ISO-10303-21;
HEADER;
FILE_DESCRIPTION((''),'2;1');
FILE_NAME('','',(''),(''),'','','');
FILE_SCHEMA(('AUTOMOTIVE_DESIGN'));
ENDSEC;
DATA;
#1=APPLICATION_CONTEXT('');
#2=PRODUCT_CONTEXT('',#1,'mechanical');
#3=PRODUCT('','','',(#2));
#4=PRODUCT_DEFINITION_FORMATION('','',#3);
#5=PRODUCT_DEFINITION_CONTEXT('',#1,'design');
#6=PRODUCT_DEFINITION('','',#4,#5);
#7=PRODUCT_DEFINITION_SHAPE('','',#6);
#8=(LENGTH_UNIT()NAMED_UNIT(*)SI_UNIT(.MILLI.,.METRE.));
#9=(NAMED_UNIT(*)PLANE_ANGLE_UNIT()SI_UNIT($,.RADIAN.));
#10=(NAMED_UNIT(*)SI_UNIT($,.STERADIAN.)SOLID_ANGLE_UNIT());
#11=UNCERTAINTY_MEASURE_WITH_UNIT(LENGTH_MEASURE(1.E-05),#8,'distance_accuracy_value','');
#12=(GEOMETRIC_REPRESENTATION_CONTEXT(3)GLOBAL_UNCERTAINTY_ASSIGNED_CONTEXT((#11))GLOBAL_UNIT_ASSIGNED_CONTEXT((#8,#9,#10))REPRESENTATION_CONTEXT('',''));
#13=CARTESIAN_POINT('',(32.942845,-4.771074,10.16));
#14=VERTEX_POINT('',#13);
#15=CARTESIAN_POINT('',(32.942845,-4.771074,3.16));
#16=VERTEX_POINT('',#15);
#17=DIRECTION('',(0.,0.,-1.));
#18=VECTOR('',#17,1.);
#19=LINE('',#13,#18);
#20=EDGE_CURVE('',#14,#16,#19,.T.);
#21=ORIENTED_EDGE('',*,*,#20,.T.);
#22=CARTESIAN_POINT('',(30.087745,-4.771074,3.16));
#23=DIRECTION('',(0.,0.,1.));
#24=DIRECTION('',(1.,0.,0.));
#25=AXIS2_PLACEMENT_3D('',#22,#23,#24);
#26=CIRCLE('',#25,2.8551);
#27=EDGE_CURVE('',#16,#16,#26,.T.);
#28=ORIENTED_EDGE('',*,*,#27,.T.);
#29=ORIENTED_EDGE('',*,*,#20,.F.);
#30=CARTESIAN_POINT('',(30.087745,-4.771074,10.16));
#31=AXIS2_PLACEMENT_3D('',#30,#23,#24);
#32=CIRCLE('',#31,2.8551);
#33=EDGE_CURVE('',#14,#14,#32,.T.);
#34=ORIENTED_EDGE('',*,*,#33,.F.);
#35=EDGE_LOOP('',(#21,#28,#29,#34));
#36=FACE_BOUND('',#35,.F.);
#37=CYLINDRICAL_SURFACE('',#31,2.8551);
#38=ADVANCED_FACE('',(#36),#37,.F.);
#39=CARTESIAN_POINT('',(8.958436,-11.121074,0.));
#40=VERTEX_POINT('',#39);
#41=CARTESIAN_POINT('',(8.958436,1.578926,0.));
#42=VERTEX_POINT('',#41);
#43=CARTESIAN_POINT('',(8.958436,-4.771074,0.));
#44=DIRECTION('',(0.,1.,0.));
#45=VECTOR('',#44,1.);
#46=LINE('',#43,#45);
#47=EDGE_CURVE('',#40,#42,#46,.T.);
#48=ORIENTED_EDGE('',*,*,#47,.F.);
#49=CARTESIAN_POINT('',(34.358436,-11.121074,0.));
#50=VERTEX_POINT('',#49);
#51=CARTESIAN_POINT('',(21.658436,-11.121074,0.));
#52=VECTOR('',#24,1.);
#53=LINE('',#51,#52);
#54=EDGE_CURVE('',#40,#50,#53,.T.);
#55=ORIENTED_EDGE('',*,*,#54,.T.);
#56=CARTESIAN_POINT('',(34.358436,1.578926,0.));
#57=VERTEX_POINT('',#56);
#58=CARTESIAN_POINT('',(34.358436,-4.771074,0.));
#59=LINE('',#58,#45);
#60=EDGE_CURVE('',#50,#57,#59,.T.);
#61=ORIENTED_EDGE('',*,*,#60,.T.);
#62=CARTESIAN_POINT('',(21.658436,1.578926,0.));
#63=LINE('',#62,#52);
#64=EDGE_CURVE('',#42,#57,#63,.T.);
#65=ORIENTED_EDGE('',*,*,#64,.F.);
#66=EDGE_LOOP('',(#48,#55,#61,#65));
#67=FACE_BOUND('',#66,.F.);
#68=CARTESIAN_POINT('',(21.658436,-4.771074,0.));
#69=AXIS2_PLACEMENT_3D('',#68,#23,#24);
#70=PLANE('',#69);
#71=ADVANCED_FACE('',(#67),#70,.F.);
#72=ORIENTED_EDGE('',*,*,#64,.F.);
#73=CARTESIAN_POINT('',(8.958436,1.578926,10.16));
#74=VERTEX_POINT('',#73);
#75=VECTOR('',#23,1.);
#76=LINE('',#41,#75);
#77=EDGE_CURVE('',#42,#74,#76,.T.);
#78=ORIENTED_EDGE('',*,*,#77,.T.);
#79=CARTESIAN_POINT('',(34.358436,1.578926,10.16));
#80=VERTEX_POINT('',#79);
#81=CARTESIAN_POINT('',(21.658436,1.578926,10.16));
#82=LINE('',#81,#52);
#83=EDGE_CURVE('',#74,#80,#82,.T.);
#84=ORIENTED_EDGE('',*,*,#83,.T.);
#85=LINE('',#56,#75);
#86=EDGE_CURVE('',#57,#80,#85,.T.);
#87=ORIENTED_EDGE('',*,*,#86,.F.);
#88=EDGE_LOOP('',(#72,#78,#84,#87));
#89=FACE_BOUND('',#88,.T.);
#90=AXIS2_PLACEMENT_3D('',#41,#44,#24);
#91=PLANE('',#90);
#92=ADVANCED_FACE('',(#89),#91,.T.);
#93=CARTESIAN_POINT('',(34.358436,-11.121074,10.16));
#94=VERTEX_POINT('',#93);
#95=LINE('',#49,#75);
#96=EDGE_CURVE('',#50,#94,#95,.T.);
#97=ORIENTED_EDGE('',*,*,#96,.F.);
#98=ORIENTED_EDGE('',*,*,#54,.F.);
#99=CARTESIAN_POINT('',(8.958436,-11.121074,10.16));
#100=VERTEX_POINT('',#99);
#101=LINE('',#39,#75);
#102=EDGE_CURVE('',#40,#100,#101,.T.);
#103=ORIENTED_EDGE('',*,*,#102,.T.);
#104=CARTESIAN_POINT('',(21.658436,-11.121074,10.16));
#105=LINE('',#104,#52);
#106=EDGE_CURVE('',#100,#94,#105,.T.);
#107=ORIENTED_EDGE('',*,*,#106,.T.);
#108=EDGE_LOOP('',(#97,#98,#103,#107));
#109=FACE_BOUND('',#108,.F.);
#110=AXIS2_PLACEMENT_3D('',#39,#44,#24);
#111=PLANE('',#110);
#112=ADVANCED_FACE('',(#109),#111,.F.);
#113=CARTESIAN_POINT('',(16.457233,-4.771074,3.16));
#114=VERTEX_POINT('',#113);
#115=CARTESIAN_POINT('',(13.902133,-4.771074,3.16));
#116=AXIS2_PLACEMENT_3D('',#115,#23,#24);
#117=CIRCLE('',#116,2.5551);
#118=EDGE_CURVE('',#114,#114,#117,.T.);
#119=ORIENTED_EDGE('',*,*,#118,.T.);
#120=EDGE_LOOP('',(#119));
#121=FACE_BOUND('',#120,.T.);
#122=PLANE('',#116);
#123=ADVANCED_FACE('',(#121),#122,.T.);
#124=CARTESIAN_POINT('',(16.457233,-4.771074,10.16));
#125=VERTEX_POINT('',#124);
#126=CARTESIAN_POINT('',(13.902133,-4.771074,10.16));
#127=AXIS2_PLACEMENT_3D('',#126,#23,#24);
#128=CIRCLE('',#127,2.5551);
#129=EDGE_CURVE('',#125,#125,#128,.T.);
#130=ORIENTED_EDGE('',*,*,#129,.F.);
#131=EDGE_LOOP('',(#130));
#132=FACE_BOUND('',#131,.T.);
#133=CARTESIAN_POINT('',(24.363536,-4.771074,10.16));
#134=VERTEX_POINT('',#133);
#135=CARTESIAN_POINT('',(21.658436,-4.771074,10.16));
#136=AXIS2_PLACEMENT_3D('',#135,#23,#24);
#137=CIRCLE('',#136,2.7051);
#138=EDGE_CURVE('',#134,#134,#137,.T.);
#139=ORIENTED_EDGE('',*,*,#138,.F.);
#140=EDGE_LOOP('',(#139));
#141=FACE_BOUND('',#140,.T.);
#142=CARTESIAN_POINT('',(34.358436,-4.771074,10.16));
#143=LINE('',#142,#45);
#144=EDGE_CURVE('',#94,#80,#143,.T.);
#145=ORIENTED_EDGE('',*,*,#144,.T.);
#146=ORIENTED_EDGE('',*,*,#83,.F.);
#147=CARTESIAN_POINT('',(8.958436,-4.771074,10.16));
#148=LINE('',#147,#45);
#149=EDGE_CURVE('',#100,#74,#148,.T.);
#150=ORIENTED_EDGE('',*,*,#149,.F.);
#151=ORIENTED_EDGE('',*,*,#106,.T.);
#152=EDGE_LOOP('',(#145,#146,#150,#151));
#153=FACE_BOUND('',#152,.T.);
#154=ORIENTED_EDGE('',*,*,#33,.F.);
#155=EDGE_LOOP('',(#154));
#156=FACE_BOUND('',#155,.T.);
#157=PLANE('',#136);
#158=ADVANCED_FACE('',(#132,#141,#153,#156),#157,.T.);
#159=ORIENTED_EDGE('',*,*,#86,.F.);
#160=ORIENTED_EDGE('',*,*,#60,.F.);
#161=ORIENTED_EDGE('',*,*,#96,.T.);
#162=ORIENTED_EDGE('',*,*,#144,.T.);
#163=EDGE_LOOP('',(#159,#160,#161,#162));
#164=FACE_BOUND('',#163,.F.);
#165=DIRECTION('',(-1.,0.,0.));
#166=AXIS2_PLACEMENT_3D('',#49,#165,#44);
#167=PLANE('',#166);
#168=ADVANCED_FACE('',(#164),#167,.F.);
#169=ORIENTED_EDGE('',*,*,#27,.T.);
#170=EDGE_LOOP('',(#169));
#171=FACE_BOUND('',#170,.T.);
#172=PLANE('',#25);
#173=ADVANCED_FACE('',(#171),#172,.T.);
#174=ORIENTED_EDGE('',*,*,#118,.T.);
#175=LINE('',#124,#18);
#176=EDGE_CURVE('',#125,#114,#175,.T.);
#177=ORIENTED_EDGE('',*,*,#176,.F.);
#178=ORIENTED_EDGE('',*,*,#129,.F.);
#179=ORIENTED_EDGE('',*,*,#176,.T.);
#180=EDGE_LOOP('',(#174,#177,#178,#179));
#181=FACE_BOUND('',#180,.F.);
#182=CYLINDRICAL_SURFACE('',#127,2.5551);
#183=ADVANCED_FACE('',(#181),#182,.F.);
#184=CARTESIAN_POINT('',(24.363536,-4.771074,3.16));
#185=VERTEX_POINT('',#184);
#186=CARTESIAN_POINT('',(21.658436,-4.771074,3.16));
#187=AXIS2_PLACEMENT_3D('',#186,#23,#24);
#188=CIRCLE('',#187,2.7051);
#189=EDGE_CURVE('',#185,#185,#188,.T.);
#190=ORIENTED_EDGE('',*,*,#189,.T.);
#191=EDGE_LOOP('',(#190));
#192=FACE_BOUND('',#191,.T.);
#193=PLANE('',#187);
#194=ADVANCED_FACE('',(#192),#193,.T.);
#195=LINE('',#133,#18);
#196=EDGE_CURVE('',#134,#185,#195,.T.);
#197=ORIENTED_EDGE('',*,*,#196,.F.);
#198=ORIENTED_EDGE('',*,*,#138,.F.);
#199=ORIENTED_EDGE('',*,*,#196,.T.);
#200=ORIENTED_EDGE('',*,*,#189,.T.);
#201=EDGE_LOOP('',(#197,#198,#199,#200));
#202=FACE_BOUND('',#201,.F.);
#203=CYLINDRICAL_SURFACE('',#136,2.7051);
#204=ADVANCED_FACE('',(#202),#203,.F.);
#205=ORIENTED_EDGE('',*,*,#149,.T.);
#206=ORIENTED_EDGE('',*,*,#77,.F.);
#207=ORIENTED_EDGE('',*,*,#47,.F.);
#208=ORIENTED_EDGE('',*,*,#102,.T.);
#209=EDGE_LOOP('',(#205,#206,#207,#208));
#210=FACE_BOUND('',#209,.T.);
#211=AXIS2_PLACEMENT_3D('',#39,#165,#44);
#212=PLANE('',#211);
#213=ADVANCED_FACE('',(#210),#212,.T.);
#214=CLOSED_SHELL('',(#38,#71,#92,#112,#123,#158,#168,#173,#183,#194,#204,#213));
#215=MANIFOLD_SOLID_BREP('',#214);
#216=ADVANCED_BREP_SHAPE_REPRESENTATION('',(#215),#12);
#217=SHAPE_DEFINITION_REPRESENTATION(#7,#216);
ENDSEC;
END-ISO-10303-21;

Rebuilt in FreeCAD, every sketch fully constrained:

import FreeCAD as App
import Part
import Sketcher

V = App.Vector
Q = App.Units.Quantity


def add_polygon(sketch, points):
    """Adds a closed chain of lines whose ends are joined by coincident constraints."""
    first, n = sketch.GeometryCount, len(points)
    for a, b in zip(points, points[1:] + points[:1]):
        sketch.addGeometry(Part.LineSegment(App.Vector(*a, 0), App.Vector(*b, 0)), False)
    for i in range(n):
        sketch.addConstraint(Sketcher.Constraint("Coincident", first + i, 2, first + (i + 1) % n, 1))

doc = App.newDocument("Part")
body = doc.addObject("PartDesign::Body", "Body")

# Sketch on XY plane
sketch1 = body.newObject("Sketcher::SketchObject", "Sketch")
sketch1.AttachmentSupport = (doc.getObject("XY_Plane"), [""])
sketch1.MapMode = "FlatFace"
add_polygon(sketch1, [(9, 2), (9, -11), (34, -11), (34, 2)])  # lines 0-3
sketch1.addConstraint([
    Sketcher.Constraint("Vertical", 0),
    Sketcher.Constraint("Horizontal", 1),
    Sketcher.Constraint("Vertical", 2),
    Sketcher.Constraint("Horizontal", 3),
    Sketcher.Constraint("DistanceX", 1, 1, 1, 2, Q("1 in")),
    Sketcher.Constraint("DistanceY", 0, 2, 0, 1, Q("0.5 in")),
    Sketcher.Constraint("DistanceX", -1, 1, 0, 2, Q("8.958436 mm")),
    Sketcher.Constraint("DistanceY", 0, 2, -1, 1, Q("11.121074 mm")),
])
pad1 = body.newObject("PartDesign::Pad", "Pad")
pad1.Profile = sketch1
pad1.Length = Q("0.4 in")

# Sketch on XY plane
sketch2 = body.newObject("Sketcher::SketchObject", "Sketch001")
sketch2.AttachmentSupport = (doc.getObject("XY_Plane"), [""])
sketch2.MapMode = "FlatFace"
sketch2.AttachmentOffset = App.Placement(V(0, 0, 0.4 * 25.4), App.Rotation())
sketch2.addGeometry([
    Part.Circle(V(13.9, -4.8, 0), V(0, 0, 1), 2.6),
    Part.Circle(V(21.7, -4.8, 0), V(0, 0, 1), 2.7),
    Part.Circle(V(30.1, -4.8, 0), V(0, 0, 1), 2.9),
], False)
sketch2.addConstraint([
    Sketcher.Constraint("Horizontal", 0, 3, 1, 3),
    Sketcher.Constraint("Horizontal", 1, 3, 2, 3),
    Sketcher.Constraint("Diameter", 1, Q("0.213 in")),
    Sketcher.Constraint("Diameter", 0, Q("5.1102 mm")),
    Sketcher.Constraint("Diameter", 2, Q("5.7102 mm")),
    Sketcher.Constraint("DistanceX", 1, 3, 2, 3, Q("8.429309 mm")),
    Sketcher.Constraint("DistanceX", -1, 1, 0, 3, Q("13.902133 mm")),
    Sketcher.Constraint("DistanceY", 0, 3, -1, 1, Q("4.771074 mm")),
    Sketcher.Constraint("DistanceX", -1, 1, 1, 3, Q("21.658436 mm")),
])
pocket1 = body.newObject("PartDesign::Pocket", "Pocket")
pocket1.Profile = sketch2
pocket1.Length = 7

doc.recompute()
